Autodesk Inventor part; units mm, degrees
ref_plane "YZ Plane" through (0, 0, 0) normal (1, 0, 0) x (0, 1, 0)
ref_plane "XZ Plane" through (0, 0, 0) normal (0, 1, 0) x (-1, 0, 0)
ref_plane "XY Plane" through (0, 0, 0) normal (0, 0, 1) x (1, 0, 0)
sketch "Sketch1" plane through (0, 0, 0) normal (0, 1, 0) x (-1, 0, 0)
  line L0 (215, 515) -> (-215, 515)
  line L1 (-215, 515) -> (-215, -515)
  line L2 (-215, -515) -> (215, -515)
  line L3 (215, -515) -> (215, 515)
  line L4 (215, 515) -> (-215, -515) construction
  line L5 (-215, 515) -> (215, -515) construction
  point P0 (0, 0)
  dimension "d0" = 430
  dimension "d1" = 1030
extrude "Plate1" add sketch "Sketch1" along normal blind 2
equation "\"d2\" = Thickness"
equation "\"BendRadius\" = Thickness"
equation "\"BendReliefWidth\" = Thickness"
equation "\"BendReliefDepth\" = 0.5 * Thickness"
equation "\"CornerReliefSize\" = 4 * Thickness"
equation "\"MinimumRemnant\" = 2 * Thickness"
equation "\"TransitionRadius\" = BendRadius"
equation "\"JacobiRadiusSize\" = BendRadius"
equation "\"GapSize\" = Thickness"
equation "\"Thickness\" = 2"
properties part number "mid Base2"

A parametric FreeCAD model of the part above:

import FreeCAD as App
import Part
import Sketcher
from FreeCAD import Vector
Q = App.Units.Quantity


def add_polygon(sketch, points):
    """Adds a closed chain of lines whose ends are joined by coincident constraints."""
    first, n = sketch.GeometryCount, len(points)
    for a, b in zip(points, points[1:] + points[:1]):
        sketch.addGeometry(Part.LineSegment(App.Vector(*a, 0), App.Vector(*b, 0)), False)
    for i in range(n):
        sketch.addConstraint(Sketcher.Constraint("Coincident", first + i, 2, first + (i + 1) % n, 1))

doc = App.newDocument("Part")
body = doc.addObject("PartDesign::Body", "Body")

sketch1 = body.newObject("Sketcher::SketchObject", "Sketch")
sketch1.AttachmentSupport = (doc.getObject("XZ_Plane"), [""])
sketch1.MapMode = "FlatFace"
add_polygon(sketch1, [(-215, -515), (-215, 515), (215, 515), (215, -515)])
sketch1.addConstraint([
    Sketcher.Constraint("Vertical", 0),
    Sketcher.Constraint("Horizontal", 1),
    Sketcher.Constraint("Vertical", 2),
    Sketcher.Constraint("Horizontal", 3),
    Sketcher.Constraint("Symmetric", 0, 2, 2, 2, -1, 1),
    Sketcher.Constraint("DistanceX", 1, 1, 1, 2, Q("430 mm")),
    Sketcher.Constraint("DistanceY", 0, 1, 0, 2, Q("1030 mm")),
])
pad1 = body.newObject("PartDesign::Pad", "Pad")
pad1.Profile = sketch1
pad1.Length = 2
pad1.Reversed = True

doc.recompute()
